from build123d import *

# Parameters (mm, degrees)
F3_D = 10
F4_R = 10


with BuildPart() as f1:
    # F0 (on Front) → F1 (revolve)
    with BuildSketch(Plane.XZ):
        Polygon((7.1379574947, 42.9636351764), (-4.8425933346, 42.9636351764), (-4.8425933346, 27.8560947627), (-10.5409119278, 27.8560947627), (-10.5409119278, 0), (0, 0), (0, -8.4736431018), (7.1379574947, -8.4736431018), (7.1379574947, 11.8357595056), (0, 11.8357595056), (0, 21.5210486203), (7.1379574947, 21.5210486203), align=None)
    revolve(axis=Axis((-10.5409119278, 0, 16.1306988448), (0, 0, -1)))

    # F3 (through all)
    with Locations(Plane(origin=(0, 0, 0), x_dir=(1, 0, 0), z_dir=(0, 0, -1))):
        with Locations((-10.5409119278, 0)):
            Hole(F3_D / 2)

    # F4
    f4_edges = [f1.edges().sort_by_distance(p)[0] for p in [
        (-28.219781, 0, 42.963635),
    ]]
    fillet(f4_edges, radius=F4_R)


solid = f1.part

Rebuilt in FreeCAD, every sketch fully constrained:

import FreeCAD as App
import Part
import Sketcher
from FreeCAD import Vector
Q = App.Units.Quantity


def edges_at(feature, points):
    """Names of the edges that pass closest to the given points."""
    edges = feature.Shape.Edges
    near = lambda p: min(range(len(edges)), key=lambda i: edges[i].distToShape(Part.Vertex(*p))[0])
    return sorted({f"Edge{near(p) + 1}" for p in points})

doc = App.newDocument("Part")
params = doc.addObject("Spreadsheet::Sheet", "Params")
for row, (alias, value) in enumerate([
    ("revolution_angle", "360 deg"),
    ("sketch2_diameter", "10 mm"),
    ("hole_diameter", "10 mm"),
    ("fillet_radius", "10 mm"),
], start=1):
    params.set(f"A{row}", alias)
    params.set(f"B{row}", "=" + value)
    params.setAlias(f"B{row}", alias)

body = doc.addObject("PartDesign::Body", "Body")

sketch1 = doc.addObject("Sketcher::SketchObject", "Sketch")
body.addObject(sketch1)
sketch1.AttachmentSupport = (doc.XZ_Plane, [""])
sketch1.MapMode = "FlatFace"
sketch1.addGeometry([
    Part.LineSegment(Vector(7, 43, 0), Vector(-5, 43, 0)),
    Part.LineSegment(Vector(-5, 43, 0), Vector(-5, 28, 0)),
    Part.LineSegment(Vector(-5, 28, 0), Vector(-11, 28, 0)),
    Part.LineSegment(Vector(-11, 28, 0), Vector(-11, 0, 0)),
    Part.LineSegment(Vector(-11, 0, 0), Vector(0, 0, 0)),
    Part.LineSegment(Vector(0, 0, 0), Vector(0, -8, 0)),
    Part.LineSegment(Vector(0, -8, 0), Vector(7, -8, 0)),
    Part.LineSegment(Vector(7, -8, 0), Vector(7, 12, 0)),
    Part.LineSegment(Vector(7, 12, 0), Vector(0, 12, 0)),
    Part.LineSegment(Vector(0, 12, 0), Vector(0, 22, 0)),
    Part.LineSegment(Vector(0, 22, 0), Vector(7, 22, 0)),
    Part.LineSegment(Vector(7, 22, 0), Vector(7, 43, 0)),
], False)
sketch1.addGeometry(Part.LineSegment(Vector(-11, 43, 0), Vector(-11, -8, 0)), True)
sketch1.addConstraint([
    Sketcher.Constraint("Coincident", 0, 2, 1, 1),
    Sketcher.Constraint("Coincident", 1, 2, 2, 1),
    Sketcher.Constraint("Coincident", 2, 2, 3, 1),
    Sketcher.Constraint("Coincident", 3, 2, 4, 1),
    Sketcher.Constraint("Coincident", 4, 2, 5, 1),
    Sketcher.Constraint("Coincident", 5, 2, 6, 1),
    Sketcher.Constraint("Coincident", 6, 2, 7, 1),
    Sketcher.Constraint("Coincident", 7, 2, 8, 1),
    Sketcher.Constraint("Coincident", 8, 2, 9, 1),
    Sketcher.Constraint("Coincident", 9, 2, 10, 1),
    Sketcher.Constraint("Coincident", 10, 2, 11, 1),
    Sketcher.Constraint("Coincident", 11, 2, 0, 1),
    Sketcher.Constraint("Horizontal", 0),
    Sketcher.Constraint("Vertical", 1),
    Sketcher.Constraint("Horizontal", 2),
    Sketcher.Constraint("Vertical", 3),
    Sketcher.Constraint("Horizontal", 4),
    Sketcher.Constraint("Vertical", 5),
    Sketcher.Constraint("Horizontal", 6),
    Sketcher.Constraint("Vertical", 7),
    Sketcher.Constraint("Horizontal", 8),
    Sketcher.Constraint("Vertical", 9),
    Sketcher.Constraint("Horizontal", 10),
    Sketcher.Constraint("Vertical", 11),
    Sketcher.Constraint("Vertical", 12),
    Sketcher.Constraint("Coincident", 4, 2, -1, 1),
    Sketcher.Constraint("PointOnObject", 8, 2, -2),
    Sketcher.Constraint("Horizontal", 11, 2, 12, 1),
    Sketcher.Constraint("Horizontal", 6, 2, 12, 2),
    Sketcher.Constraint("Vertical", 7, 2, 10, 2),
    Sketcher.Constraint("Vertical", 3, 2, 12, 1),
    Sketcher.Constraint("DistanceX", 0, 2, 0, 1, Q("11.980551 mm")),
    Sketcher.Constraint("DistanceX", 2, 2, 2, 1, Q("5.698319 mm")),
    Sketcher.Constraint("DistanceX", 4, 1, 4, 2, Q("10.540912 mm")),
    Sketcher.Constraint("DistanceY", 1, 2, 1, 1, Q("15.10754 mm")),
    Sketcher.Constraint("DistanceY", 9, 1, 9, 2, Q("9.685289 mm")),
    Sketcher.Constraint("DistanceY", 12, 2, 12, 1, Q("51.437278 mm")),
    Sketcher.Constraint("DistanceY", 3, 2, 3, 1, Q("27.856095 mm")),
    Sketcher.Constraint("DistanceY", 7, 1, 7, 2, Q("20.309403 mm")),
])
revolution = doc.addObject("PartDesign::Revolution", "Revolution")
body.addObject(revolution)
revolution.Profile = sketch1
revolution.ReferenceAxis = (sketch1, ["Axis0"])
revolution.setExpression("Angle", "Params.revolution_angle")

sketch2 = doc.addObject("Sketcher::SketchObject", "Sketch001")
body.addObject(sketch2)
sketch2.AttachmentSupport = (doc.XY_Plane, [""])
sketch2.MapMode = "FlatFace"
sketch2.addGeometry(Part.Circle(Vector(-11, 0, 0), Vector(0, 0, 1), 5), False)
sketch2.addConstraint([
    Sketcher.Constraint("PointOnObject", 0, 3, -1),
    Sketcher.Constraint("Diameter", 0, Q("10 mm")),
    Sketcher.Constraint("DistanceX", 0, 3, -1, 1, Q("10.540912 mm")),
])
sketch2.setExpression("Constraints[1]", "Params.sketch2_diameter")
doc.recompute()
hole = doc.addObject("PartDesign::Hole", "Hole")
body.addObject(hole)
hole.Profile = sketch2
hole.ThreadType = "None"
hole.setExpression("Diameter", "Params.hole_diameter")
hole.DepthType = "ThroughAll"
hole.Reversed = True
doc.recompute()

fillet = doc.addObject("PartDesign::Fillet", "Fillet")
body.addObject(fillet)
fillet.Base = (hole, edges_at(hole, [(-28.22, 0, 42.964)]))
fillet.setExpression("Radius", "Params.fillet_radius")

doc.recompute()
